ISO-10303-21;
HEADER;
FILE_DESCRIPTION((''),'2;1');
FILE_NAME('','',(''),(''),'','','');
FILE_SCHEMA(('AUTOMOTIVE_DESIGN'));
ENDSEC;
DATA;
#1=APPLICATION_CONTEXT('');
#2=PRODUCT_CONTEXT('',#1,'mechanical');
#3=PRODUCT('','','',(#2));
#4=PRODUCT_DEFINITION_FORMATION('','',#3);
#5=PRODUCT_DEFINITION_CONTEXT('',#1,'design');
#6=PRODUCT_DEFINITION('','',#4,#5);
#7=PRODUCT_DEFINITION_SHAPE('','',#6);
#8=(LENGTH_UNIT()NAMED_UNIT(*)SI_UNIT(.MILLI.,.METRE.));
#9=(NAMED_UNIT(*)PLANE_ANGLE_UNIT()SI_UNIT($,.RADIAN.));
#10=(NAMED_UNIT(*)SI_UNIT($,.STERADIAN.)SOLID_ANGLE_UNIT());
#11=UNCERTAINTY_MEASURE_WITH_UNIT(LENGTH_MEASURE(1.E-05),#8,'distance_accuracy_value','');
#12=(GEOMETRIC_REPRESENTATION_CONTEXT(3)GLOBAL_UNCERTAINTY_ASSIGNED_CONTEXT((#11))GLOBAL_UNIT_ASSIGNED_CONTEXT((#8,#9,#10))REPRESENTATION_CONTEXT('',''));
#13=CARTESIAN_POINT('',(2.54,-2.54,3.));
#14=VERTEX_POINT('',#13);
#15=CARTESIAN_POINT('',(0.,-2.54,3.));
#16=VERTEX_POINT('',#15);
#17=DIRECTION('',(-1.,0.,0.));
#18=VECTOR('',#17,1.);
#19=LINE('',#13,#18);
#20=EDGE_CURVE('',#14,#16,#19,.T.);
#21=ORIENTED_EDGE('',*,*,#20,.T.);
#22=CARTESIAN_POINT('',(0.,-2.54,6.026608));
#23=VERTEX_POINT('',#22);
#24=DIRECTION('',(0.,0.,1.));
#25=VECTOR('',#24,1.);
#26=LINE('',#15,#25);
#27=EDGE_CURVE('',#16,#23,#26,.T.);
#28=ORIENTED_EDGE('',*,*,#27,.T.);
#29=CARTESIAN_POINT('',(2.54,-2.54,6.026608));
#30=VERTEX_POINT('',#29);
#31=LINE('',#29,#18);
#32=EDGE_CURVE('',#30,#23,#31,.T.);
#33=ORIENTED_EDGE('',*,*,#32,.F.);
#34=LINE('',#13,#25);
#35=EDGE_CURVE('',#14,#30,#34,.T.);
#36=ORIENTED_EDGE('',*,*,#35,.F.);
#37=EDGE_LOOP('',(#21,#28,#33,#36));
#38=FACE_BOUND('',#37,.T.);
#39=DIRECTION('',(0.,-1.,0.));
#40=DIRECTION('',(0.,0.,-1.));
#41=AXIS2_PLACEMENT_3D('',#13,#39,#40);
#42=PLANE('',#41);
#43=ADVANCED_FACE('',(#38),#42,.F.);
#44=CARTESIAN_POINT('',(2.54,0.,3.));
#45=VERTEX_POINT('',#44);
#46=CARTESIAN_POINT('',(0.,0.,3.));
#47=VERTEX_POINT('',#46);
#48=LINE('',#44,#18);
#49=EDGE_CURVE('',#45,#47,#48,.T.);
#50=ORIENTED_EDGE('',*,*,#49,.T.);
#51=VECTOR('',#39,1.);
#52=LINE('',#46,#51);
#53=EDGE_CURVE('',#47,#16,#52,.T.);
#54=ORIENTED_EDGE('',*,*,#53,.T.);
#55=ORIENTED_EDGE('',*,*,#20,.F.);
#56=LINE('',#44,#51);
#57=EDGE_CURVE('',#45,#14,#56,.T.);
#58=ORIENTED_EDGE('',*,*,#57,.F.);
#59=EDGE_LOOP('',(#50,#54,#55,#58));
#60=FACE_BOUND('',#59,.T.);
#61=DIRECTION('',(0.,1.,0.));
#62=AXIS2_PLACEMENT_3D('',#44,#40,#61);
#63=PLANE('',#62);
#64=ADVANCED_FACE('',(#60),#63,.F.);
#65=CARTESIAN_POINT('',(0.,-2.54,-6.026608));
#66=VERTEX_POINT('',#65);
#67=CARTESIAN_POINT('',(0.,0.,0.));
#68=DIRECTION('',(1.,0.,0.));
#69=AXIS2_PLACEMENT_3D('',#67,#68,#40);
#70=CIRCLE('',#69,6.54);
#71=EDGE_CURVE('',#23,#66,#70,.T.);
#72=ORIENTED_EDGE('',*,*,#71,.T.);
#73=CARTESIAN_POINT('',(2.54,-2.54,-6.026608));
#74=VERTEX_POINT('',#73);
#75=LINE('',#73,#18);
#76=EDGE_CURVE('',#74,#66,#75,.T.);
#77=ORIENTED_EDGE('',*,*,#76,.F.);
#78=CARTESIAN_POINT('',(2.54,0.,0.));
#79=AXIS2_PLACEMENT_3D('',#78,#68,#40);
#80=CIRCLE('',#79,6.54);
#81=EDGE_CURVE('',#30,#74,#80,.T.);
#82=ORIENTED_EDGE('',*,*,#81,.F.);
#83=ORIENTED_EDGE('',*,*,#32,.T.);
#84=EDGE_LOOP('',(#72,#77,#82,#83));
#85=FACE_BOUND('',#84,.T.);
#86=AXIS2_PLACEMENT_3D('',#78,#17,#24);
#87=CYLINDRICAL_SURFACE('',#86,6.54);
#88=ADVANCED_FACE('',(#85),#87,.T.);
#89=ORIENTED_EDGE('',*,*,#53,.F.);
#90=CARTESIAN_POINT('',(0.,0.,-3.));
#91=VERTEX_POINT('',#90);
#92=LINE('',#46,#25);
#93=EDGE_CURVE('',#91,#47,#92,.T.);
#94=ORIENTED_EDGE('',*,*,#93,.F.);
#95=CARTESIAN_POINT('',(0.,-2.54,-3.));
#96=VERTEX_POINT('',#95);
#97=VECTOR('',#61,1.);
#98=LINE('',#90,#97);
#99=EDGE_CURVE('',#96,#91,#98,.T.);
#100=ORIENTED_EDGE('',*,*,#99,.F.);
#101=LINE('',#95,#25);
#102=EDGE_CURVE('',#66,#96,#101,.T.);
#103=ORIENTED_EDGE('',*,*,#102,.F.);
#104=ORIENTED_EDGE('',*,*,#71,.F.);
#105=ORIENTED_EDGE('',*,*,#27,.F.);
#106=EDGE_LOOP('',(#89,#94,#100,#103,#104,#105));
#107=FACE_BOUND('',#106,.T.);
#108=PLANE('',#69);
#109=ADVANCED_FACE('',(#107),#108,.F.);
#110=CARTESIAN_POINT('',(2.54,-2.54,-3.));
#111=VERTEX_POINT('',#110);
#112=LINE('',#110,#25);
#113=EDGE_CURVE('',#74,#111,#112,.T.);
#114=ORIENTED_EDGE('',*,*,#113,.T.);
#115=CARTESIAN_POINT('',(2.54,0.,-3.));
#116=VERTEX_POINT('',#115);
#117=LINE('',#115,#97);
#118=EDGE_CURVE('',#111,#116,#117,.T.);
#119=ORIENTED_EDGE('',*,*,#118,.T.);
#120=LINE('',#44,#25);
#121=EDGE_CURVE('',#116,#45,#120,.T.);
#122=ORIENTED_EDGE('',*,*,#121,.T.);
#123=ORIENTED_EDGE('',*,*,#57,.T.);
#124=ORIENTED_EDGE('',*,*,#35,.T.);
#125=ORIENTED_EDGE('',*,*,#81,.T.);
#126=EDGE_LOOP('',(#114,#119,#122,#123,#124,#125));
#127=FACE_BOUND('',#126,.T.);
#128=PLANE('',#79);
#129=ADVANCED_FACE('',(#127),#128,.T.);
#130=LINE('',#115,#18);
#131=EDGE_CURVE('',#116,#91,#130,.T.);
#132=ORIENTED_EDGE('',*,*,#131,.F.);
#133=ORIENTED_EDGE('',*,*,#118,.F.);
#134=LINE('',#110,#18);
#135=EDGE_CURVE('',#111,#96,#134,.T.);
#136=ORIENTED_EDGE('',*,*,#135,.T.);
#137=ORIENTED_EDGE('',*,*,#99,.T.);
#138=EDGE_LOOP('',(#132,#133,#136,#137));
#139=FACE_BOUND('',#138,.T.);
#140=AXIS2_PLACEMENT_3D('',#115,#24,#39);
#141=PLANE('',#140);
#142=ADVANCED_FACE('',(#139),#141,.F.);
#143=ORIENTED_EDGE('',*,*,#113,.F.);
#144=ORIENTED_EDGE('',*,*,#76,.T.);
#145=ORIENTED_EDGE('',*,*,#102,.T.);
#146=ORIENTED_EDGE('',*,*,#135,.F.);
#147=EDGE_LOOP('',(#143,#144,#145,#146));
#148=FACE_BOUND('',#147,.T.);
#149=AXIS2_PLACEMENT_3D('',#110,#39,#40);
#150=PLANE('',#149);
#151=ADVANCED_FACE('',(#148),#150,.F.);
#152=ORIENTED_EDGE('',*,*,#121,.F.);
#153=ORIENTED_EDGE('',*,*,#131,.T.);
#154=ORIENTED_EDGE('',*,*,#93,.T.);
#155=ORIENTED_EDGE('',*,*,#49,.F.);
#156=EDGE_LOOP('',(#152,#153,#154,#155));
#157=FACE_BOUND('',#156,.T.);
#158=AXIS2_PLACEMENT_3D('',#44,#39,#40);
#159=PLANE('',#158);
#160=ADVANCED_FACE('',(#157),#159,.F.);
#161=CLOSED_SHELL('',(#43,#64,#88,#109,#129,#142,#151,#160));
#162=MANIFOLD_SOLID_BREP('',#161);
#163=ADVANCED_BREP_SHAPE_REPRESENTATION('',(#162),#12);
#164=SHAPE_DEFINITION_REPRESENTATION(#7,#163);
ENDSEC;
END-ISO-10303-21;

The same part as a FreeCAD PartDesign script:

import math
import FreeCAD as App
import Part
import Sketcher
from FreeCAD import Vector

doc = App.newDocument("Part")
body = doc.addObject("PartDesign::Body", "Body")

sketch1 = body.newObject("Sketcher::SketchObject", "Sketch")
sketch1.AttachmentSupport = (doc.getObject("YZ_Plane"), [""])
sketch1.MapMode = "FlatFace"
sketch1.addGeometry(Part.LineSegment(Vector(0, -3, 0), Vector(0, 3, 0)), False)
sketch1.addGeometry(Part.LineSegment(Vector(0, 3, 0), Vector(-2.5, 3, 0)), False)
sketch1.addGeometry(Part.LineSegment(Vector(-2.5, 3, 0), Vector(-2.5, 6, 0)), False)
sketch1.addGeometry(Part.ArcOfCircle(Part.Circle(Vector(0, 0, 0), Vector(0, 0, 1), 6.5), math.radians(113), math.radians(247)), False)
sketch1.addGeometry(Part.LineSegment(Vector(-2.5, -6, 0), Vector(-2.5, -3, 0)), False)
sketch1.addGeometry(Part.LineSegment(Vector(-2.5, -3, 0), Vector(0, -3, 0)), False)
sketch1.addConstraint(Sketcher.Constraint("Coincident", 0, 2, 1, 1))
sketch1.addConstraint(Sketcher.Constraint("Coincident", 1, 2, 2, 1))
sketch1.addConstraint(Sketcher.Constraint("Coincident", 2, 2, 3, 1))
sketch1.addConstraint(Sketcher.Constraint("Coincident", 3, 2, 4, 1))
sketch1.addConstraint(Sketcher.Constraint("Coincident", 4, 2, 5, 1))
sketch1.addConstraint(Sketcher.Constraint("Coincident", 5, 2, 0, 1))
sketch1.addConstraint(Sketcher.Constraint("Vertical", 0))
sketch1.addConstraint(Sketcher.Constraint("Horizontal", 1))
sketch1.addConstraint(Sketcher.Constraint("Vertical", 2))
sketch1.addConstraint(Sketcher.Constraint("Vertical", 4))
sketch1.addConstraint(Sketcher.Constraint("Horizontal", 5))
sketch1.addConstraint(Sketcher.Constraint("Coincident", 3, 3, -1, 1))
sketch1.addConstraint(Sketcher.Constraint("Symmetric", 0, 2, 5, 2, -1, 1))
sketch1.addConstraint(Sketcher.Constraint("Vertical", 2, 2, 3, 2))
sketch1.addConstraint(Sketcher.Constraint("DistanceY", 0, 1, 0, 2, 6.0))
sketch1.addConstraint(Sketcher.Constraint("Radius", 3, 6.54))
sketch1.addConstraint(Sketcher.Constraint("DistanceX", 1, 2, 1, 1, 2.54))
pad1 = body.newObject("PartDesign::Pad", "Pad")
pad1.Profile = sketch1
pad1.Length = 2.54

doc.recompute()
